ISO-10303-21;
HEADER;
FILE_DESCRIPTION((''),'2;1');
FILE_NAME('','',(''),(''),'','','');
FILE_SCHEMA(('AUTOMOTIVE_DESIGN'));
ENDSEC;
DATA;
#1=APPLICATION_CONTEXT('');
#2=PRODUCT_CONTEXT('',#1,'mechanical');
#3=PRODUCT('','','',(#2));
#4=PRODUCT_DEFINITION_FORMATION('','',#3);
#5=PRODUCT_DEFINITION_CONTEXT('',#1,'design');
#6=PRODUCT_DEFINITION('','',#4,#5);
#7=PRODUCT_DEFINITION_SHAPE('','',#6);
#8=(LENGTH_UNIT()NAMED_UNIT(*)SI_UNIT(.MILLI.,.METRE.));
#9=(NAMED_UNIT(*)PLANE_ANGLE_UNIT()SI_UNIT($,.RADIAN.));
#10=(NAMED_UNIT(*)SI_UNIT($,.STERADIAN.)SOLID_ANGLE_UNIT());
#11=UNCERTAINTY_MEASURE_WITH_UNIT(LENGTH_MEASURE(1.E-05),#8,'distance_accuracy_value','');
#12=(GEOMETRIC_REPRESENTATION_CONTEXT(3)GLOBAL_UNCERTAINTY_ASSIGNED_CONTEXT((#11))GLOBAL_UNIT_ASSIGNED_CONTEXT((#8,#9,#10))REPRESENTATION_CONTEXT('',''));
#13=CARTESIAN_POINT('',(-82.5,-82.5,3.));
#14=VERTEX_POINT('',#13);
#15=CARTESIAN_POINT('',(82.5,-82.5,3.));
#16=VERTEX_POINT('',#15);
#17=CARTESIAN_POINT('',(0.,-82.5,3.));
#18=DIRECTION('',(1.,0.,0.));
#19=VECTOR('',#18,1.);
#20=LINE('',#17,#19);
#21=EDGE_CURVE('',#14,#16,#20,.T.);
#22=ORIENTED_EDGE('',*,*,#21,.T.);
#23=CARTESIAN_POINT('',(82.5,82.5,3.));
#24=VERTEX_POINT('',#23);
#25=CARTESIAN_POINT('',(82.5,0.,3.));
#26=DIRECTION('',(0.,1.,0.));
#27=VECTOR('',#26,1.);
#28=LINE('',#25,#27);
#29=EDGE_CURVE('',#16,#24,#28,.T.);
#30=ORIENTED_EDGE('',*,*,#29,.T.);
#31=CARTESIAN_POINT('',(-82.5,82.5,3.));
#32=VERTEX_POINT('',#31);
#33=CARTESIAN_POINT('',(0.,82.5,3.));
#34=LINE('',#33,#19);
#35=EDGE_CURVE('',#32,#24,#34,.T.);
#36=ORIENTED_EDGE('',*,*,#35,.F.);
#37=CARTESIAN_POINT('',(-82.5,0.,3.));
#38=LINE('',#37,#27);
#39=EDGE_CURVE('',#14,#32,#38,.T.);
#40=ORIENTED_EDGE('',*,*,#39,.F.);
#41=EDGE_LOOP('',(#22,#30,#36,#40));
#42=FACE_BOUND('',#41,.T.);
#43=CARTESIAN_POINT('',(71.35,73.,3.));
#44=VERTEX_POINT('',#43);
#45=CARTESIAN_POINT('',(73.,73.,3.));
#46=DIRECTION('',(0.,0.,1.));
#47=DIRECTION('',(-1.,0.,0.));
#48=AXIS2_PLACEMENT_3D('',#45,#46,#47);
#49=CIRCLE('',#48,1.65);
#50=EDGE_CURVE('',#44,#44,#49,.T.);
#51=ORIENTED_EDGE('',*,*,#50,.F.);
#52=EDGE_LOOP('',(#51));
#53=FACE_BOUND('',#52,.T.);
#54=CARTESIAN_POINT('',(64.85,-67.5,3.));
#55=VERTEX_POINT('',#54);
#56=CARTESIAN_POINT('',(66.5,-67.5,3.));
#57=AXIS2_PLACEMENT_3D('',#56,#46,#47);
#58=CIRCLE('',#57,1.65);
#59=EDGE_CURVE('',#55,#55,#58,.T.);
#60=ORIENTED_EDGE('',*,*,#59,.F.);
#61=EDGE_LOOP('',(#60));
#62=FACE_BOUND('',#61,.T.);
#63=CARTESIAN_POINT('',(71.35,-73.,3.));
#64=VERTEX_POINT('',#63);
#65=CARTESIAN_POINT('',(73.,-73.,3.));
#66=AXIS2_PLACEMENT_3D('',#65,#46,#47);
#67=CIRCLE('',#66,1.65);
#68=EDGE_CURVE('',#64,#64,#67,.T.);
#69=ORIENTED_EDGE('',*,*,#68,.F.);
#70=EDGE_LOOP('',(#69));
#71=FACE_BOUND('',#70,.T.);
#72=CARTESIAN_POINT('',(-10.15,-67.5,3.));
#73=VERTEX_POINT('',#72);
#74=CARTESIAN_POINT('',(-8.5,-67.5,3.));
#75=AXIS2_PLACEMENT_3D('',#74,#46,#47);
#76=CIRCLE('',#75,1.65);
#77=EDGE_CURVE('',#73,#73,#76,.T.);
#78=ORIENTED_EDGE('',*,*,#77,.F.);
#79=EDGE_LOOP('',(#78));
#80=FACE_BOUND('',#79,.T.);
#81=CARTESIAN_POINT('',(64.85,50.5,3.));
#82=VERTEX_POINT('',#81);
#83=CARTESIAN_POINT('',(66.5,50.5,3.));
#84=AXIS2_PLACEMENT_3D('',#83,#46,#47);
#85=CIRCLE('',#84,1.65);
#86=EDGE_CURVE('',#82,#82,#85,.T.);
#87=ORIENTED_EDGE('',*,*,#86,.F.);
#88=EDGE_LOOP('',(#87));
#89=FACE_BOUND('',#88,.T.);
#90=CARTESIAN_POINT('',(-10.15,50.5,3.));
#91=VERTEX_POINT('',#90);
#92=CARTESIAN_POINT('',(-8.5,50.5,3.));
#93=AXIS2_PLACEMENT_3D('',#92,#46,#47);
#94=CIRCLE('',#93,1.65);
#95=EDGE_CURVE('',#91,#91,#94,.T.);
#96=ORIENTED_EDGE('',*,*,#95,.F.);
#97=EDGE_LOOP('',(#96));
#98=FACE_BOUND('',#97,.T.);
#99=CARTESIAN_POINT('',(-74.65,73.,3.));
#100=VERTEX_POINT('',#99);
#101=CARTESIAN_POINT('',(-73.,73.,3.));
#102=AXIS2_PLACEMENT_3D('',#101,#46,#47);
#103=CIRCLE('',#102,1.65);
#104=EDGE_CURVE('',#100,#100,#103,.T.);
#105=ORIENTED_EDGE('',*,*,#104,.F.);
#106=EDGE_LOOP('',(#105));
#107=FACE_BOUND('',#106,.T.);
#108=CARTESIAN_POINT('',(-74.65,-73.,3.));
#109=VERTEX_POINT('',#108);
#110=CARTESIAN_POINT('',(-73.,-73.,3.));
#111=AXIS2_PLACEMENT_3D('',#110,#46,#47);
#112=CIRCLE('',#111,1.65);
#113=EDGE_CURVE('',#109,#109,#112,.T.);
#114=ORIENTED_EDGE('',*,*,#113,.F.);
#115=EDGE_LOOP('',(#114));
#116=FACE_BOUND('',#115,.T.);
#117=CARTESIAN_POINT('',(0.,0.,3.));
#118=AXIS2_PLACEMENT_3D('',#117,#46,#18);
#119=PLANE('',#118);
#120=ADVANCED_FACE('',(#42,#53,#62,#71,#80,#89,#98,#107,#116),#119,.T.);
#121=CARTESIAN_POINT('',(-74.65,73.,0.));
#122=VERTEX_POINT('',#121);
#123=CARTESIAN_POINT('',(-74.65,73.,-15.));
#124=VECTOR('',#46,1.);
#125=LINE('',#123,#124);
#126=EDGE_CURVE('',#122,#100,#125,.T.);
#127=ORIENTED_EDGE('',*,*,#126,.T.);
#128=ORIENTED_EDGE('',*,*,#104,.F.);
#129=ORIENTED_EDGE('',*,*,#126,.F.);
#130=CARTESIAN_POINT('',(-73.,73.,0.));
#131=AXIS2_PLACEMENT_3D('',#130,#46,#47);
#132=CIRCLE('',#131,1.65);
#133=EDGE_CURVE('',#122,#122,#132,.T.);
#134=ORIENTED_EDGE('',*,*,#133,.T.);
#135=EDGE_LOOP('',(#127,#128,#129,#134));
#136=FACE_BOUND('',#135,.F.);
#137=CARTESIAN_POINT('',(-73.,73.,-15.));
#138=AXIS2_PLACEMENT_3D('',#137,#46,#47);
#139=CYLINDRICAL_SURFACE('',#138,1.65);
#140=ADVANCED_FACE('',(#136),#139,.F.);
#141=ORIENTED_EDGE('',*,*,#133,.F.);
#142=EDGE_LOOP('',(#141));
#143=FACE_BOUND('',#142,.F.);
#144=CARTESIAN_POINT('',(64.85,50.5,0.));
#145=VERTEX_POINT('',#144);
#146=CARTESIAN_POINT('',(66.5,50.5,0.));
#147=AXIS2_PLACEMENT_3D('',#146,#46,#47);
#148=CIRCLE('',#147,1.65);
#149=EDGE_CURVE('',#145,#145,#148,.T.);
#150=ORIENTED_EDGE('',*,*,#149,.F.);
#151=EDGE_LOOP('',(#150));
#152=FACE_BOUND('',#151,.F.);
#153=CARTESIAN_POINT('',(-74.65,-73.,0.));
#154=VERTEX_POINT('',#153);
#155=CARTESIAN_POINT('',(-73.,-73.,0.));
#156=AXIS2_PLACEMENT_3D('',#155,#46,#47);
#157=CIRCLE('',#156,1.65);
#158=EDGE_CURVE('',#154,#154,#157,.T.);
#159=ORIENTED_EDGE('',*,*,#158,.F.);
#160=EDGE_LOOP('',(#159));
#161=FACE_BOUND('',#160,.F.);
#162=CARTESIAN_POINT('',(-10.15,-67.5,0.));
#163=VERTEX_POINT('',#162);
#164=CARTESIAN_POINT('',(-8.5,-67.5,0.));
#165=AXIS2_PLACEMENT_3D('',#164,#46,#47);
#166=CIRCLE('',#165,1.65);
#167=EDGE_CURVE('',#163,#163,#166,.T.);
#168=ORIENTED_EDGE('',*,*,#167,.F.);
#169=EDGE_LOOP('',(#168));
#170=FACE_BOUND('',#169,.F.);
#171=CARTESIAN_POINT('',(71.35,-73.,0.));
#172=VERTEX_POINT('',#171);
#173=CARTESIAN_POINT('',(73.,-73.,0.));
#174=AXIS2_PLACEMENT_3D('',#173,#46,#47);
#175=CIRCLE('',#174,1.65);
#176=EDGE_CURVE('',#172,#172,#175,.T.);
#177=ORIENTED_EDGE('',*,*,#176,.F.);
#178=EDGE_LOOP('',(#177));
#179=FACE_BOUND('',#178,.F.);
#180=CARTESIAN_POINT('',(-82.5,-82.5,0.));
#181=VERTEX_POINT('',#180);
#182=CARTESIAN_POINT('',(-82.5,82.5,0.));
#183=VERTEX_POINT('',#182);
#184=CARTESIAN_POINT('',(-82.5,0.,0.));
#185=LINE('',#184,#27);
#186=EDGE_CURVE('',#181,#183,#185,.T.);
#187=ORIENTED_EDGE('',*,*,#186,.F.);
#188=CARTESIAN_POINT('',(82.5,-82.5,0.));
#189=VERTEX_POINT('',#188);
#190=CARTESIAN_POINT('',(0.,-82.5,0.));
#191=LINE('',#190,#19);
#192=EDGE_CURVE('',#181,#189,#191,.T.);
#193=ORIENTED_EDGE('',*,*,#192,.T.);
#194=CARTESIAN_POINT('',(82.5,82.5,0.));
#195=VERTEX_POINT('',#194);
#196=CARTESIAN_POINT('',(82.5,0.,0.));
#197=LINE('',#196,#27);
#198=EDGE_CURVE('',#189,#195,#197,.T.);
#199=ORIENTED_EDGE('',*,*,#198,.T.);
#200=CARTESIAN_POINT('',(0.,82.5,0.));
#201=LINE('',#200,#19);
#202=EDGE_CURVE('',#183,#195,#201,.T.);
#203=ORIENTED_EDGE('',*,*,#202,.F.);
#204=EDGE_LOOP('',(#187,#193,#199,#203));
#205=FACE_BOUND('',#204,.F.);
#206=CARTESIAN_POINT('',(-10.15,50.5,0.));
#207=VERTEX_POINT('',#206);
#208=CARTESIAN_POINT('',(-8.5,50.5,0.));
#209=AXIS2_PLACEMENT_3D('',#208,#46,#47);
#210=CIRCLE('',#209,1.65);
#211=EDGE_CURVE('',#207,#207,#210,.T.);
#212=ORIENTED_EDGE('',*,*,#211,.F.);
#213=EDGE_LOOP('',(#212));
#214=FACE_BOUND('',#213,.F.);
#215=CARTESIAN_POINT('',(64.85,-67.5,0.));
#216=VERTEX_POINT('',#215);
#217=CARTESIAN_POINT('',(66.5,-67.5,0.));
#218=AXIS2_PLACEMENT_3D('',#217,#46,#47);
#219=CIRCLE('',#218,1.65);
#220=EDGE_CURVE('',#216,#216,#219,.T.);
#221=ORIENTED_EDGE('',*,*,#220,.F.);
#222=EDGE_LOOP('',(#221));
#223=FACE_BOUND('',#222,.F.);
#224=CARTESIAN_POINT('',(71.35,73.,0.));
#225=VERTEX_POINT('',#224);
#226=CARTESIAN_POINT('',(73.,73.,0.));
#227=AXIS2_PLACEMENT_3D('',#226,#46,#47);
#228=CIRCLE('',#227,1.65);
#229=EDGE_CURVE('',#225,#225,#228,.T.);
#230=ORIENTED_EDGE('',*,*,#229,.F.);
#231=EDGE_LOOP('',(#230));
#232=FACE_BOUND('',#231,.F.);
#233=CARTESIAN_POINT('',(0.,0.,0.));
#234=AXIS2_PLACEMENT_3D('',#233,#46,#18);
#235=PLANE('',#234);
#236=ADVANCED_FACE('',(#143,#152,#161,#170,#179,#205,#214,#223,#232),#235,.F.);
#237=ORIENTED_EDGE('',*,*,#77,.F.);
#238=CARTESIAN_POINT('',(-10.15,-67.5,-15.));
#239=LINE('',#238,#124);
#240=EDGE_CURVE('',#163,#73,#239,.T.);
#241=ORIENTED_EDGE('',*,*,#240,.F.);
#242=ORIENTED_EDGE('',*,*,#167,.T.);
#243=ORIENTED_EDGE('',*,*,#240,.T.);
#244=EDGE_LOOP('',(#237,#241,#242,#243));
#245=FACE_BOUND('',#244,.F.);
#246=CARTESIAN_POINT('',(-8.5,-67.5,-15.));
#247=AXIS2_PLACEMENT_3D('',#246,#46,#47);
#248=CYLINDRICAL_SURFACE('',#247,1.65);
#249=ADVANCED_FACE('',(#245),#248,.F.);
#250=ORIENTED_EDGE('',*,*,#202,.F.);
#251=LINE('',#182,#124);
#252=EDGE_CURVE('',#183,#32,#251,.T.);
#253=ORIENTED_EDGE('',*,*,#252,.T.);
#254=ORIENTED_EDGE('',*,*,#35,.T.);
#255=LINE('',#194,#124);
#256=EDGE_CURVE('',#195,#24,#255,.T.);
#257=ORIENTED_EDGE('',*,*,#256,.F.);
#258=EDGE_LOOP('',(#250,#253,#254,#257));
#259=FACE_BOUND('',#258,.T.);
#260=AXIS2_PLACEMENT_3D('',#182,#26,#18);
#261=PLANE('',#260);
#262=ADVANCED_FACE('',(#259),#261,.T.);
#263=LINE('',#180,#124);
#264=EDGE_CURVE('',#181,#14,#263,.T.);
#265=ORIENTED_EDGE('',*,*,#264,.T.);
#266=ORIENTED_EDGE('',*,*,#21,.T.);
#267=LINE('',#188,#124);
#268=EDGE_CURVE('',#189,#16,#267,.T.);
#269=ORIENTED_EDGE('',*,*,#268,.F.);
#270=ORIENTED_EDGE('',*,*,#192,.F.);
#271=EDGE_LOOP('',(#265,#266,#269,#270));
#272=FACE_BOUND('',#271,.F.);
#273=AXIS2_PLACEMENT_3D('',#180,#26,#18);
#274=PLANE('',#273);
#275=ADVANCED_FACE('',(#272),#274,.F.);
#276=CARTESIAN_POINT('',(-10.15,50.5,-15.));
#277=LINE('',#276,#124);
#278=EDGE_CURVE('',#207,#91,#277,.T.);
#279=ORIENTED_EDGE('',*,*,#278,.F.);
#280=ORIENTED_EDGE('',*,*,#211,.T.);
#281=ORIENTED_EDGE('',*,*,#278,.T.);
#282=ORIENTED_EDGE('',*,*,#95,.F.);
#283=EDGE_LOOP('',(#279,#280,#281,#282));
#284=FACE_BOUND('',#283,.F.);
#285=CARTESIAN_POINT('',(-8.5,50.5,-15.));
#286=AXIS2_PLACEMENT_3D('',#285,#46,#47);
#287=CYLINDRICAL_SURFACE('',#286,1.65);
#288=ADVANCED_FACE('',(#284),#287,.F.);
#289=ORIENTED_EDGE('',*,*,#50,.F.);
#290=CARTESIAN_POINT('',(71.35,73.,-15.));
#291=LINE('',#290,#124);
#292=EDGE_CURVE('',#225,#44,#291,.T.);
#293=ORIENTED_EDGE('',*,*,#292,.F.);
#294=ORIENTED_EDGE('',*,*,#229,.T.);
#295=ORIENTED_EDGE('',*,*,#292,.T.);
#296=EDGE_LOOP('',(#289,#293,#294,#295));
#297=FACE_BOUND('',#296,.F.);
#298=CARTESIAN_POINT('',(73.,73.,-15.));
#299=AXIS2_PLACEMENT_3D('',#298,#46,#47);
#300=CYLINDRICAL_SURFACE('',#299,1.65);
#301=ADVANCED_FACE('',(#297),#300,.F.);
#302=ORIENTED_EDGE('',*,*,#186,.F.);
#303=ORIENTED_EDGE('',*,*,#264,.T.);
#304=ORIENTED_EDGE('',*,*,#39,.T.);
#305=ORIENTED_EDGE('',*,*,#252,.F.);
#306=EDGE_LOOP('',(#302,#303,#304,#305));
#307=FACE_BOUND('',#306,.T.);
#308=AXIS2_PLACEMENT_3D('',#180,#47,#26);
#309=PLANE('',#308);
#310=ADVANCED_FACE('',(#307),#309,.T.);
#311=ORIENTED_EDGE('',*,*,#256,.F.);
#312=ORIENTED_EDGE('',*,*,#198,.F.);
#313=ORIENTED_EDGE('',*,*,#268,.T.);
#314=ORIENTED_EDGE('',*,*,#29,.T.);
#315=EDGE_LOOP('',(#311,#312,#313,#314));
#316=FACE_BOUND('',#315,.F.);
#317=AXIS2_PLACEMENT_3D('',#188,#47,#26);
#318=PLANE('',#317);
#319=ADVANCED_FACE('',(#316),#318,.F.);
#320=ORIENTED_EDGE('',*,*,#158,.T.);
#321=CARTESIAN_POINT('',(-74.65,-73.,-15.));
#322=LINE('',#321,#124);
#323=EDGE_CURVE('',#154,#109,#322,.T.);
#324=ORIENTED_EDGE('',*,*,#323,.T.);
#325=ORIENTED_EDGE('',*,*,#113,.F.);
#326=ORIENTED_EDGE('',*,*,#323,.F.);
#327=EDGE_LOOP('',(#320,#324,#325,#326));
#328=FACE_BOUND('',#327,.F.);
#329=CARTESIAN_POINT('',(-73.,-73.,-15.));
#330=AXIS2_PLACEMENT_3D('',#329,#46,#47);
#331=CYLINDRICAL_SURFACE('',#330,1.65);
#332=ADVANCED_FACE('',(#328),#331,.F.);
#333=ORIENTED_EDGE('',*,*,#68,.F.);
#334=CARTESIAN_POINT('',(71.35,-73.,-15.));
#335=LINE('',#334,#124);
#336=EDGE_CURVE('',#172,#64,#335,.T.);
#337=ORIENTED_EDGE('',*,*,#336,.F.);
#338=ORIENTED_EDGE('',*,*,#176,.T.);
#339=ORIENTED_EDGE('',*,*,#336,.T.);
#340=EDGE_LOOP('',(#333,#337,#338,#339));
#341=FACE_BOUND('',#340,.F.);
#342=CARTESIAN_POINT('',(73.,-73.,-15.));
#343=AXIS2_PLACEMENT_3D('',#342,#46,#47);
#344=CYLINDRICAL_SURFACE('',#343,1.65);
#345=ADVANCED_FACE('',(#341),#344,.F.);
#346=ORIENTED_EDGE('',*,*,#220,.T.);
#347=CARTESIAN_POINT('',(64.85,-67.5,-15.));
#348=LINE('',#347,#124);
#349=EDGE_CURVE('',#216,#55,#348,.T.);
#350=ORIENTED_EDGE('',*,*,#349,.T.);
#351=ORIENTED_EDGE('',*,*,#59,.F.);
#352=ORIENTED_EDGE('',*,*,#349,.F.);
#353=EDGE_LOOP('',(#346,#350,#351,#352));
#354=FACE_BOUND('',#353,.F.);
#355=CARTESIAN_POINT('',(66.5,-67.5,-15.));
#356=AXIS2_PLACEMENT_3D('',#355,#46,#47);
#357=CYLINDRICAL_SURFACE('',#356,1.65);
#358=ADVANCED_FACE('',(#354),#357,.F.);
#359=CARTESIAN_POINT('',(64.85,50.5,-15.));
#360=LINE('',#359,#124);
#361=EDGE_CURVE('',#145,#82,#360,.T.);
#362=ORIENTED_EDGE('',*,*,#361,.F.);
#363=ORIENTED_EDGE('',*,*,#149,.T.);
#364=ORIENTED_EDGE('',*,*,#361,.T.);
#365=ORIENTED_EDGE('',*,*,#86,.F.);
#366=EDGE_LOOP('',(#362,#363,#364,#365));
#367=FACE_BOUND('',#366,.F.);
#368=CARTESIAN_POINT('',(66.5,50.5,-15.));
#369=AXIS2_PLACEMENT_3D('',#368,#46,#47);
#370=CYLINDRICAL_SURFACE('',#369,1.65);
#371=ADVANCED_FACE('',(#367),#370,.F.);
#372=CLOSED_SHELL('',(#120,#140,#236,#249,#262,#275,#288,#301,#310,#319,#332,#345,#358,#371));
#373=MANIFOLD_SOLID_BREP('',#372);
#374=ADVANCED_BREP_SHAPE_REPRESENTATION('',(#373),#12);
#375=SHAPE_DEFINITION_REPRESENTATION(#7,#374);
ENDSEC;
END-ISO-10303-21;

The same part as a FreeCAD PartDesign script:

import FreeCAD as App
import Part
import Sketcher

doc = App.newDocument("Part")
params = doc.addObject("Spreadsheet::Sheet", "Params")
for row, (alias, value) in enumerate([
    ("sketch1_width", "165 mm"),
    ("pad1_length", "3 mm"),
    ("sketch2_diameter", "3.3 mm"),
    ("hole_diameter", "3.3 mm"),
    ("hole_depth", "15 mm"),
], start=1):
    params.set(f"A{row}", alias)
    params.set(f"B{row}", "=" + value)
    params.setAlias(f"B{row}", alias)

body = doc.addObject("PartDesign::Body", "Body")

# Sketch on XY plane
sketch1 = body.newObject("Sketcher::SketchObject", "Sketch")
sketch1.AttachmentSupport = (doc.getObject("XY_Plane"), [""])
sketch1.MapMode = "FlatFace"
sketch1.addGeometry([
    Part.LineSegment(App.Vector(-82, 82, 0), App.Vector(-82, -82, 0)),
    Part.LineSegment(App.Vector(-82, -82, 0), App.Vector(82, -82, 0)),
    Part.LineSegment(App.Vector(82, -82, 0), App.Vector(82, 82, 0)),
    Part.LineSegment(App.Vector(82, 82, 0), App.Vector(-82, 82, 0)),
], False)
sketch1.addConstraint([
    Sketcher.Constraint("Coincident", 0, 2, 1, 1),
    Sketcher.Constraint("Coincident", 1, 2, 2, 1),
    Sketcher.Constraint("Coincident", 2, 2, 3, 1),
    Sketcher.Constraint("Coincident", 3, 2, 0, 1),
    Sketcher.Constraint("Vertical", 0),
    Sketcher.Constraint("Horizontal", 1),
    Sketcher.Constraint("Vertical", 2),
    Sketcher.Constraint("Horizontal", 3),
    Sketcher.Constraint("Symmetric", 0, 2, 2, 2, -1, 1),
    Sketcher.Constraint("Equal", 3, 0),
    Sketcher.Constraint("DistanceX", 1, 1, 1, 2, 165.0),
])
sketch1.setExpression("Constraints[10]", "Params.sketch1_width")
pad1 = body.newObject("PartDesign::Pad", "Pad")
pad1.Profile = sketch1
pad1.setExpression("Length", "Params.pad1_length")

# Sketch on XY plane
sketch2 = body.newObject("Sketcher::SketchObject", "Sketch001")
sketch2.AttachmentSupport = (doc.getObject("XY_Plane"), [""])
sketch2.MapMode = "FlatFace"
sketch2.addGeometry([
    Part.Circle(App.Vector(-73, 73, 0), App.Vector(0, 0, 1), 1.6),  # 0
    Part.Circle(App.Vector(73, 73, 0), App.Vector(0, 0, 1), 1.6),  # 1
    Part.Circle(App.Vector(-8.5, 50.5, 0), App.Vector(0, 0, 1), 1.6),  # 2
    Part.Circle(App.Vector(66.5, 50.5, 0), App.Vector(0, 0, 1), 1.6),  # 3
    Part.Circle(App.Vector(66.5, -67.5, 0), App.Vector(0, 0, 1), 1.6),  # 4
    Part.Circle(App.Vector(-8.5, -67.5, 0), App.Vector(0, 0, 1), 1.6),  # 5
    Part.Circle(App.Vector(73, -73, 0), App.Vector(0, 0, 1), 1.6),  # 6
    Part.Circle(App.Vector(-73, -73, 0), App.Vector(0, 0, 1), 1.6),  # 7
], False)
sketch2.addConstraint([
    Sketcher.Constraint("Equal", 0, 1),
    Sketcher.Constraint("Equal", 1, 2),
    Sketcher.Constraint("Equal", 2, 3),
    Sketcher.Constraint("Equal", 3, 4),
    Sketcher.Constraint("Equal", 4, 5),
    Sketcher.Constraint("Equal", 5, 6),
    Sketcher.Constraint("Equal", 6, 7),
    Sketcher.Constraint("Symmetric", 0, 3, 6, 3, -1, 1),
    Sketcher.Constraint("Symmetric", 1, 3, 7, 3, -1, 1),
    Sketcher.Constraint("Symmetric", 0, 3, 1, 3, -2),
    Sketcher.Constraint("Horizontal", 2, 3, 3, 3),
    Sketcher.Constraint("Horizontal", 4, 3, 5, 3),
    Sketcher.Constraint("Vertical", 3, 3, 4, 3),
    Sketcher.Constraint("Vertical", 2, 3, 5, 3),
    Sketcher.Constraint("Diameter", 0, 3.3),
    Sketcher.Constraint("DistanceX", 0, 3, -1, 1, 73.0),
    Sketcher.Constraint("DistanceY", -1, 1, 0, 3, 73.0),
    Sketcher.Constraint("DistanceX", 2, 3, 3, 3, 75.0),
    Sketcher.Constraint("DistanceY", 4, 3, 3, 3, 118.0),
    Sketcher.Constraint("DistanceX", 2, 3, -1, 1, 8.5),
    Sketcher.Constraint("DistanceY", -1, 1, 2, 3, 50.5),
])
sketch2.setExpression("Constraints[14]", "Params.sketch2_diameter")
doc.recompute()
hole = body.newObject("PartDesign::Hole", "Hole")
hole.Profile = sketch2
hole.ThreadType = "None"
hole.setExpression("Diameter", "Params.hole_diameter")
hole.DepthType = "Dimension"
hole.setExpression("Depth", "Params.hole_depth")
hole.DrillPoint = "Angled"
hole.DrillPointAngle = 118
hole.Reversed = True

doc.recompute()
